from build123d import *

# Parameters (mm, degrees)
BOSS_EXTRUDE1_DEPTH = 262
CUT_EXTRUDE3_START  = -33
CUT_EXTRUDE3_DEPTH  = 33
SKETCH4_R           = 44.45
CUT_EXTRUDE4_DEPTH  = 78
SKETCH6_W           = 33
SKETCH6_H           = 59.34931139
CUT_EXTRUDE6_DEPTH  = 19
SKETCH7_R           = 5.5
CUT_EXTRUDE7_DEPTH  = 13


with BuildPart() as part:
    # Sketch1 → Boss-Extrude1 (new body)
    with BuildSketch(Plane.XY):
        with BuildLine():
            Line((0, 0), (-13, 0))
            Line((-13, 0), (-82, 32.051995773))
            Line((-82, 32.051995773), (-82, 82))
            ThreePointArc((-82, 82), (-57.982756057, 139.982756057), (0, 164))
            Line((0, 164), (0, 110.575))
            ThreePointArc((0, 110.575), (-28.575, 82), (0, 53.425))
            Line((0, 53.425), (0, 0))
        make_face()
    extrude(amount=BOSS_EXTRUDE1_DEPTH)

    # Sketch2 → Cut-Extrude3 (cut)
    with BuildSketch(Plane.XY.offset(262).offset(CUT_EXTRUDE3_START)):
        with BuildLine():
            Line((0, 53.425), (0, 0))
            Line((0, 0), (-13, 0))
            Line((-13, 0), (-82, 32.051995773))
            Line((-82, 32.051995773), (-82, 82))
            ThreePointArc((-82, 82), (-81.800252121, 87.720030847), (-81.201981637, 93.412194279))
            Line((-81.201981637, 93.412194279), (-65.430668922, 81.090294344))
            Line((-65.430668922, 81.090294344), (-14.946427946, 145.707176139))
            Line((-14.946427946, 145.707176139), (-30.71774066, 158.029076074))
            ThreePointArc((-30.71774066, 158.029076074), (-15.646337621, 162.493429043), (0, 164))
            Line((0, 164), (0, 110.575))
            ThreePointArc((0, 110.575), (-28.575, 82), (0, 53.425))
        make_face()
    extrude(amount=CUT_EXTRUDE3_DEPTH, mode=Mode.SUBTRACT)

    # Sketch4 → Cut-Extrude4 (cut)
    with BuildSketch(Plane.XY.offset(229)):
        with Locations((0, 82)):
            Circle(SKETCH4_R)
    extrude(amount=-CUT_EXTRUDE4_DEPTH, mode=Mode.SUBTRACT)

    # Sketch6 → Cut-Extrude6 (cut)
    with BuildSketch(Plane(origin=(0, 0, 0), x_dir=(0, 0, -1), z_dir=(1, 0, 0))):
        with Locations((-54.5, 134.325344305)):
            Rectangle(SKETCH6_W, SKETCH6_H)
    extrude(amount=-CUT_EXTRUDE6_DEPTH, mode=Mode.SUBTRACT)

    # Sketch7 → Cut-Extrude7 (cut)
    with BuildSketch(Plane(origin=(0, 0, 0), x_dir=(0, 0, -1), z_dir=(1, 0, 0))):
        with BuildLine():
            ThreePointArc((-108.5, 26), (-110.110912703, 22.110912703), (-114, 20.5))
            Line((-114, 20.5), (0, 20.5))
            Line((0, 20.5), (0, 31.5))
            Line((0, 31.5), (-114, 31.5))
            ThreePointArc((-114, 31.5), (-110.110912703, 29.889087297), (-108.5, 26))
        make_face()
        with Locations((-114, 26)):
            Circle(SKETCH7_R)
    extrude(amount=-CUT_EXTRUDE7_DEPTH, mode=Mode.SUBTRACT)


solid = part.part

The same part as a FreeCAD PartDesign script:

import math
import FreeCAD as App
import Part
import Sketcher

V = App.Vector
Q = App.Units.Quantity


def add_polygon(sketch, points):
    """Adds a closed chain of lines whose ends are joined by coincident constraints."""
    first, n = sketch.GeometryCount, len(points)
    for a, b in zip(points, points[1:] + points[:1]):
        sketch.addGeometry(Part.LineSegment(App.Vector(*a, 0), App.Vector(*b, 0)), False)
    for i in range(n):
        sketch.addConstraint(Sketcher.Constraint("Coincident", first + i, 2, first + (i + 1) % n, 1))

doc = App.newDocument("Part")
params = doc.addObject("Spreadsheet::Sheet", "Params")
for row, (alias, value) in enumerate([
    ("sketch1_radius", "82 mm"),
    ("sketch1_width", "13 mm"),
    ("pad1_length", "262 mm"),
    ("sketch2_radius", "82 mm"),
    ("sketch2_width", "13 mm"),
    ("sketch2_length", "82 mm"),
    ("pocket1_length", "33 mm"),
    ("sketch3_diameter", "88.9 mm"),
    ("pocket2_length", "78 mm"),
    ("sketch4_height", "33 mm"),
    ("pocket3_length", "19 mm"),
    ("sketch5_radius", "5.5 mm"),
    ("sketch5_height", "114 mm"),
    ("pocket4_length", "13 mm"),
], start=1):
    params.set(f"A{row}", alias)
    params.set(f"B{row}", "=" + value)
    params.setAlias(f"B{row}", alias)

body = doc.addObject("PartDesign::Body", "Body")

sketch1 = body.newObject("Sketcher::SketchObject", "Sketch")
sketch1.AttachmentSupport = (doc.getObject("XY_Plane"), [""])
sketch1.MapMode = "FlatFace"
sketch1.addGeometry([
    Part.LineSegment(V(-13, 0, 0), V(0, 0, 0)),
    Part.LineSegment(V(0, 0, 0), V(0, 53, 0)),
    Part.ArcOfCircle(Part.Circle(V(0, 82, 0), V(0, 0, 1), 29), math.radians(90), math.radians(270)),
    Part.LineSegment(V(0, 111, 0), V(0, 164, 0)),
    Part.ArcOfCircle(Part.Circle(V(0, 82, 0), V(0, 0, 1), 82), math.radians(90), math.radians(180)),
    Part.LineSegment(V(-82, 82, 0), V(-82, 32, 0)),
    Part.LineSegment(V(-82, 32, 0), V(-13, 0, 0)),
], False)
sketch1.addConstraint([
    Sketcher.Constraint("Coincident", 0, 2, 1, 1),
    Sketcher.Constraint("Coincident", 1, 2, 2, 2),
    Sketcher.Constraint("Coincident", 2, 1, 3, 1),
    Sketcher.Constraint("Coincident", 3, 2, 4, 1),
    Sketcher.Constraint("Tangent", 4, 2, 5, 1),
    Sketcher.Constraint("Coincident", 5, 2, 6, 1),
    Sketcher.Constraint("Coincident", 6, 2, 0, 1),
    Sketcher.Constraint("Horizontal", 0),
    Sketcher.Constraint("Vertical", 1),
    Sketcher.Constraint("Vertical", 3),
    Sketcher.Constraint("Vertical", 5),
    Sketcher.Constraint("Coincident", 0, 2, -1, 1),
    Sketcher.Constraint("Coincident", 4, 3, 2, 3),
    Sketcher.Constraint("PointOnObject", 2, 3, -2),
    Sketcher.Constraint("PointOnObject", 2, 1, -2),
    Sketcher.Constraint("Equal", 1, 3),
    Sketcher.Constraint("Radius", 4, 82.0),
    Sketcher.Constraint("DistanceX", 0, 1, 0, 2, 13.0),
    Sketcher.Constraint("Radius", 2, 28.575),
    Sketcher.Constraint("Distance", 6, 76.081078),
])
sketch1.setExpression("Constraints[16]", "Params.sketch1_radius")
sketch1.setExpression("Constraints[17]", "Params.sketch1_width")
pad1 = body.newObject("PartDesign::Pad", "Pad")
pad1.Profile = sketch1
pad1.setExpression("Length", "Params.pad1_length")

sketch2 = body.newObject("Sketcher::SketchObject", "Sketch001")
sketch2.AttachmentSupport = (doc.getObject("XY_Plane"), [""])
sketch2.MapMode = "FlatFace"
sketch2.AttachmentOffset = App.Placement(V(0, 0, 229), App.Rotation())
sketch2.addGeometry([
    Part.LineSegment(V(0, 0, 0), V(0, 53, 0)),
    Part.ArcOfCircle(Part.Circle(V(0, 82, 0), V(0, 0, 1), 29), math.radians(90), math.radians(270)),
    Part.LineSegment(V(0, 111, 0), V(0, 164, 0)),
    Part.ArcOfCircle(Part.Circle(V(0, 82, 0), V(0, 0, 1), 82), math.radians(90), math.radians(112)),
    Part.LineSegment(V(-31, 158, 0), V(-15, 146, 0)),
    Part.LineSegment(V(-15, 146, 0), V(-65, 81, 0)),
    Part.LineSegment(V(-65, 81, 0), V(-81, 93, 0)),
    Part.ArcOfCircle(Part.Circle(V(0, 82, 0), V(0, 0, 1), 82), math.radians(172), math.radians(180)),
    Part.LineSegment(V(-82, 82, 0), V(-82, 32, 0)),
    Part.LineSegment(V(-82, 32, 0), V(-13, 0, 0)),
    Part.LineSegment(V(-13, 0, 0), V(0, 0, 0)),
], False)
sketch2.addConstraint([
    Sketcher.Constraint("Coincident", 0, 2, 1, 2),
    Sketcher.Constraint("Coincident", 1, 1, 2, 1),
    Sketcher.Constraint("Coincident", 2, 2, 3, 1),
    Sketcher.Constraint("Coincident", 3, 2, 4, 1),
    Sketcher.Constraint("Coincident", 4, 2, 5, 1),
    Sketcher.Constraint("Coincident", 5, 2, 6, 1),
    Sketcher.Constraint("Coincident", 6, 2, 7, 1),
    Sketcher.Constraint("Tangent", 7, 2, 8, 1),
    Sketcher.Constraint("Coincident", 8, 2, 9, 1),
    Sketcher.Constraint("Coincident", 9, 2, 10, 1),
    Sketcher.Constraint("Coincident", 10, 2, 0, 1),
    Sketcher.Constraint("Vertical", 0),
    Sketcher.Constraint("Vertical", 2),
    Sketcher.Constraint("Vertical", 8),
    Sketcher.Constraint("Horizontal", 10),
    Sketcher.Constraint("Coincident", 10, 2, -1, 1),
    Sketcher.Constraint("Coincident", 3, 3, 1, 3),
    Sketcher.Constraint("Coincident", 7, 3, 1, 3),
    Sketcher.Constraint("Equal", 3, 7),
    Sketcher.Constraint("PointOnObject", 1, 3, -2),
    Sketcher.Constraint("PointOnObject", 1, 1, -2),
    Sketcher.Constraint("Perpendicular", 4, 5),
    Sketcher.Constraint("Perpendicular", 5, 6),
    Sketcher.Constraint("Equal", 0, 2),
    Sketcher.Constraint("Equal", 4, 6),
    Sketcher.Constraint("Radius", 3, 82.0),
    Sketcher.Constraint("DistanceX", 10, 1, 10, 2, 13.0),
    Sketcher.Constraint("Angle", 4, Q("-38 deg")),
    Sketcher.Constraint("Distance", 5, 82.0),
    Sketcher.Constraint("Radius", 1, 28.575),
    Sketcher.Constraint("DistanceY", 4, 2, 3, 2, 12.3219),
    Sketcher.Constraint("DistanceY", 8, 2, 5, 2, 49.038299),
])
sketch2.setExpression("Constraints[25]", "Params.sketch2_radius")
sketch2.setExpression("Constraints[26]", "Params.sketch2_width")
sketch2.setExpression("Constraints[28]", "Params.sketch2_length")
pocket1 = body.newObject("PartDesign::Pocket", "Pocket")
pocket1.Profile = sketch2
pocket1.setExpression("Length", "Params.pocket1_length")
pocket1.Reversed = True

sketch3 = body.newObject("Sketcher::SketchObject", "Sketch002")
sketch3.AttachmentSupport = (doc.getObject("XY_Plane"), [""])
sketch3.MapMode = "FlatFace"
sketch3.AttachmentOffset = App.Placement(V(0, 0, 229), App.Rotation())
sketch3.addGeometry(Part.Circle(V(0, 82, 0), V(0, 0, 1), 44), False)
sketch3.addConstraint([
    Sketcher.Constraint("PointOnObject", 0, 3, -2),
    Sketcher.Constraint("Diameter", 0, 88.9),
    Sketcher.Constraint("DistanceY", -1, 1, 0, 3, 82.0),
])
sketch3.setExpression("Constraints[1]", "Params.sketch3_diameter")
pocket2 = body.newObject("PartDesign::Pocket", "Pocket001")
pocket2.Profile = sketch3
pocket2.setExpression("Length", "Params.pocket2_length")

sketch4 = body.newObject("Sketcher::SketchObject", "Sketch003")
sketch4.AttachmentSupport = (doc.getObject("YZ_Plane"), [""])
sketch4.MapMode = "FlatFace"
add_polygon(sketch4, [(164, 71), (105, 71), (105, 38), (164, 38)])
sketch4.addConstraint([
    Sketcher.Constraint("Horizontal", 0),
    Sketcher.Constraint("Vertical", 1),
    Sketcher.Constraint("Horizontal", 2),
    Sketcher.Constraint("Vertical", 3),
    Sketcher.Constraint("DistanceY", 1, 2, 1, 1, 33.0),
    Sketcher.Constraint("DistanceY", -1, 1, 0, 2, 71.0),
    Sketcher.Constraint("DistanceX", -1, 1, 2, 2, 164.0),
    Sketcher.Constraint("DistanceX", 0, 2, 0, 1, 59.349311),
])
sketch4.setExpression("Constraints[8]", "Params.sketch4_height")
pocket3 = body.newObject("PartDesign::Pocket", "Pocket002")
pocket3.Profile = sketch4
pocket3.setExpression("Length", "Params.pocket3_length")

sketch5 = body.newObject("Sketcher::SketchObject", "Sketch004")
sketch5.AttachmentSupport = (doc.getObject("YZ_Plane"), [""])
sketch5.MapMode = "FlatFace"
sketch5.addGeometry([
    Part.LineSegment(V(20, 114, 0), V(20, 0, 0)),
    Part.LineSegment(V(20, 0, 0), V(32, 0, 0)),
    Part.LineSegment(V(32, 0, 0), V(32, 114, 0)),
    Part.ArcOfCircle(Part.Circle(V(26, 114, 0), V(0, 0, 1), 6), math.radians(0), math.radians(180)),
], False)
sketch5.addConstraint([
    Sketcher.Constraint("Coincident", 0, 2, 1, 1),
    Sketcher.Constraint("Coincident", 1, 2, 2, 1),
    Sketcher.Constraint("Tangent", 2, 2, 3, 1),
    Sketcher.Constraint("Tangent", 3, 2, 0, 1),
    Sketcher.Constraint("Vertical", 0),
    Sketcher.Constraint("Horizontal", 1),
    Sketcher.Constraint("Vertical", 2),
    Sketcher.Constraint("PointOnObject", 0, 2, -1),
    Sketcher.Constraint("Radius", 3, 5.5),
    Sketcher.Constraint("DistanceY", 0, 2, 0, 1, 114.0),
    Sketcher.Constraint("DistanceX", -1, 1, 3, 3, 26.0),
])
sketch5.setExpression("Constraints[8]", "Params.sketch5_radius")
sketch5.setExpression("Constraints[9]", "Params.sketch5_height")
pocket4 = body.newObject("PartDesign::Pocket", "Pocket003")
pocket4.Profile = sketch5
pocket4.setExpression("Length", "Params.pocket4_length")

doc.recompute()
